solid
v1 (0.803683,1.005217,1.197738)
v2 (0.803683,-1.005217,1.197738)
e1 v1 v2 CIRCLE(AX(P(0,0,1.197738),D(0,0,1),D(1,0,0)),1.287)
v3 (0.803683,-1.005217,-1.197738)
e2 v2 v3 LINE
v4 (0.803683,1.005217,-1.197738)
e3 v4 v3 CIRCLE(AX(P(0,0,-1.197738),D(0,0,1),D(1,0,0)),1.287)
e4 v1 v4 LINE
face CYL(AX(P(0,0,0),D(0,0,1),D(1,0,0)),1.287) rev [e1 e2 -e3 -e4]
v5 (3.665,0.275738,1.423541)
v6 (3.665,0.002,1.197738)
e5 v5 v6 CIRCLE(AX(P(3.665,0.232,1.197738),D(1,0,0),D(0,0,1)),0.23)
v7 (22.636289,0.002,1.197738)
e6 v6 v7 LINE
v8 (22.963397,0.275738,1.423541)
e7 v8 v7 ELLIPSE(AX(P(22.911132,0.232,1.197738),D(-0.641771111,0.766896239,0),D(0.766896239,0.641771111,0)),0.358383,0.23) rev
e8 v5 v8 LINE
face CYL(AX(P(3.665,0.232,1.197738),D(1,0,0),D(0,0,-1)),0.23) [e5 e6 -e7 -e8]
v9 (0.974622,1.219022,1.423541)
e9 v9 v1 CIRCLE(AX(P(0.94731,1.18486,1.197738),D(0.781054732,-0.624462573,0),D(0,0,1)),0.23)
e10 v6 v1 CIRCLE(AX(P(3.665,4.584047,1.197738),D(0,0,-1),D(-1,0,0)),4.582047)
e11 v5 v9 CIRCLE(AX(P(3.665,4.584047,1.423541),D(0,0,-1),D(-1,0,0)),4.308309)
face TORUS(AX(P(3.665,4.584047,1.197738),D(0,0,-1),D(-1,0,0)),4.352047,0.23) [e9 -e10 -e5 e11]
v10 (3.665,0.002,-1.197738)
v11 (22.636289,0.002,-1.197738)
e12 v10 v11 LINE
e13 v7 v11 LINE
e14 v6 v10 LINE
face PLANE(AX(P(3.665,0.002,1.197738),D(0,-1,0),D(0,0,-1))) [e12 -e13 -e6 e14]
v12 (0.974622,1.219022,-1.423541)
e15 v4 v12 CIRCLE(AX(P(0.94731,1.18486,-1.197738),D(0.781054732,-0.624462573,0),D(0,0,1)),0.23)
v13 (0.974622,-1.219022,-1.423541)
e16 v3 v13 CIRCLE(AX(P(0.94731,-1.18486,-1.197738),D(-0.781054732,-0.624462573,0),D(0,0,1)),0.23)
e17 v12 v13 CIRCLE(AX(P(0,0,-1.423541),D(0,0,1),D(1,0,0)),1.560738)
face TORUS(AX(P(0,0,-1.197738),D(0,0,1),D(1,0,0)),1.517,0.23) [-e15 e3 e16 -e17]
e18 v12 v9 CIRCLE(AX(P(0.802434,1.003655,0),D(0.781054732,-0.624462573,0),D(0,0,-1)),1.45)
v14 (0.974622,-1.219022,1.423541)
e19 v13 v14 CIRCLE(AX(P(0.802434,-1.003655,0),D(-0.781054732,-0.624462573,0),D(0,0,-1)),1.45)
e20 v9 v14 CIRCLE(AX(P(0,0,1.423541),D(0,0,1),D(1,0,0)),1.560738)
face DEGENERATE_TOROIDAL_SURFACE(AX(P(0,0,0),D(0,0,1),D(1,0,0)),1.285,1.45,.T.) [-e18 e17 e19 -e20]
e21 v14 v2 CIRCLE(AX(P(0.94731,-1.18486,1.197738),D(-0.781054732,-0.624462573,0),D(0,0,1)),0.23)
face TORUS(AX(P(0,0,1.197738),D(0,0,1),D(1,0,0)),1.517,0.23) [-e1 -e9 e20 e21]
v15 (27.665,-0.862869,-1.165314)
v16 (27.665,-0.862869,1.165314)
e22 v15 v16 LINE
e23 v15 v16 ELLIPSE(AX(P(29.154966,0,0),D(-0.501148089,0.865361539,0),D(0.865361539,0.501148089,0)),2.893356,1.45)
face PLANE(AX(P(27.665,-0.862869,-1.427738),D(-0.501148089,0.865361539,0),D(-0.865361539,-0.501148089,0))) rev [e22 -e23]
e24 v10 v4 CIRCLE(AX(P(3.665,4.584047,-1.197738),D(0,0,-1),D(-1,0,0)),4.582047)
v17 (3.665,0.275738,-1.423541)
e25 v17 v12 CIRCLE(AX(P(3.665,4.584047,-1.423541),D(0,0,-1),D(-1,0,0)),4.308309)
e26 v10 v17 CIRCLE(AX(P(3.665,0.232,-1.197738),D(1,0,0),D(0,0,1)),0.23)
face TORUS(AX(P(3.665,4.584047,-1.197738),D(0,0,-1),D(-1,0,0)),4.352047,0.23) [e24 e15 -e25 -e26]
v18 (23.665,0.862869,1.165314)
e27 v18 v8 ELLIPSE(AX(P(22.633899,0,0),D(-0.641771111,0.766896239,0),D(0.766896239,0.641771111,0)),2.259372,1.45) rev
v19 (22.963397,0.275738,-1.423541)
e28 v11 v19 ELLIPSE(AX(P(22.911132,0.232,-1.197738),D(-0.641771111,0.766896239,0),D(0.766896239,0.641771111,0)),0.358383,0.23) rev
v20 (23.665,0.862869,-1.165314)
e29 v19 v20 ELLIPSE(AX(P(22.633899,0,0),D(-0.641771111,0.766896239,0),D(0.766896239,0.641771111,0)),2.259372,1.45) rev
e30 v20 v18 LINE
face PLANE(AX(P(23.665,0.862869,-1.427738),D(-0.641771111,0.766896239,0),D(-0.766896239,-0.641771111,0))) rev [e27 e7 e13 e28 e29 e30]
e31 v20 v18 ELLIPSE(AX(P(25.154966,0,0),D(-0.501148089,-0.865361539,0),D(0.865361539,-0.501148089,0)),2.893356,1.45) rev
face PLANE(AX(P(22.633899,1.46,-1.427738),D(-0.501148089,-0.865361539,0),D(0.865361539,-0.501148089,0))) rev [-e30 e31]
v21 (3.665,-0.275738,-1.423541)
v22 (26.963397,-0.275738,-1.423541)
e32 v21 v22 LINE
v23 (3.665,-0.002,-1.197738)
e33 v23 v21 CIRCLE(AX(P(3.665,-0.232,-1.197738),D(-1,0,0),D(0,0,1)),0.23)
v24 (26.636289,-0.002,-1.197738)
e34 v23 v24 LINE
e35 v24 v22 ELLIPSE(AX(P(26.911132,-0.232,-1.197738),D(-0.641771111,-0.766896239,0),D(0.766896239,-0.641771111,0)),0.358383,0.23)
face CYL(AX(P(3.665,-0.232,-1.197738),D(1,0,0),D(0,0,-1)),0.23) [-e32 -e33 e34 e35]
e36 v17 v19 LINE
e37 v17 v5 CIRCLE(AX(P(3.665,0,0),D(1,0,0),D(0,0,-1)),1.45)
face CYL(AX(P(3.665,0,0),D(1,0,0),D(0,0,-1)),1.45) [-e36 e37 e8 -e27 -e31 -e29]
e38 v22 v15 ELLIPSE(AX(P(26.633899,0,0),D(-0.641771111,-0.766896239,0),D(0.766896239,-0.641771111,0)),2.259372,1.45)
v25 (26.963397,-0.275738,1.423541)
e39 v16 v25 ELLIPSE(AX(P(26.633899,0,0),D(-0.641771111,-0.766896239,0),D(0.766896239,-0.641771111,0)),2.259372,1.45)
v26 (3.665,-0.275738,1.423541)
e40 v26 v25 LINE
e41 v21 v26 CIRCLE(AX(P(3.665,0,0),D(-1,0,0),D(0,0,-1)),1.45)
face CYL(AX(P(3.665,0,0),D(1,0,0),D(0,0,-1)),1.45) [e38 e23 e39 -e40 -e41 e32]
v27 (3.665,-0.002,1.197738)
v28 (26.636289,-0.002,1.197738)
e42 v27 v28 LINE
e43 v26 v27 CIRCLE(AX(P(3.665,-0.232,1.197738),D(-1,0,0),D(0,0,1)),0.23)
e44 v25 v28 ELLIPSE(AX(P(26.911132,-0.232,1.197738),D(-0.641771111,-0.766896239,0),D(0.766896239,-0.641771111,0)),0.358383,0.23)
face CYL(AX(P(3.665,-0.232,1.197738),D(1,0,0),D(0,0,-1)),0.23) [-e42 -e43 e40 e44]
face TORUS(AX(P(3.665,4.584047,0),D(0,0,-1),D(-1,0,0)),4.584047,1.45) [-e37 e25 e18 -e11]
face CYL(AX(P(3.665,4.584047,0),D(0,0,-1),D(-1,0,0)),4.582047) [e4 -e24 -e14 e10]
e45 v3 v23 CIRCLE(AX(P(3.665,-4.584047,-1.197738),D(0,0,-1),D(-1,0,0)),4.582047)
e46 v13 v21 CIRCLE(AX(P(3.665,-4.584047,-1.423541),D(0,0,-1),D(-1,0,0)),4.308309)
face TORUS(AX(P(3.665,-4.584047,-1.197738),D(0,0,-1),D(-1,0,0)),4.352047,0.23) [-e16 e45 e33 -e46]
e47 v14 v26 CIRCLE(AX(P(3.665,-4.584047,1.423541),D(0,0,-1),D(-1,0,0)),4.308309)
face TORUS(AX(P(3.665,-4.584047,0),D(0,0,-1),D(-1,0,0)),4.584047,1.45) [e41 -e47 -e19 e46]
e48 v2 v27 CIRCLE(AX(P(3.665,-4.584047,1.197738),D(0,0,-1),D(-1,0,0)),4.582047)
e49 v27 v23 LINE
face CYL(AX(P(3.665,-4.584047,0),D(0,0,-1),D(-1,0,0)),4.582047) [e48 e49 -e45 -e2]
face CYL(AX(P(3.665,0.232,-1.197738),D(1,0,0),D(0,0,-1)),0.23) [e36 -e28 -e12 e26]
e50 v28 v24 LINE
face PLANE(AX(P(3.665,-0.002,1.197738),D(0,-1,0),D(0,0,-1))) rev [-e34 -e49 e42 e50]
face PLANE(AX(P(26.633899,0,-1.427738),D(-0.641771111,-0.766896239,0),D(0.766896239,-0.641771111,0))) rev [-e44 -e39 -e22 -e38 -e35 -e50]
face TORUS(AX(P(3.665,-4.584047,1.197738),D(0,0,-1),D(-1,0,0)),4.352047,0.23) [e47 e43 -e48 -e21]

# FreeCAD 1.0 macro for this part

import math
import FreeCAD as App
import Part
import Sketcher

V = App.Vector
Q = App.Units.Quantity

doc = App.newDocument("Part")
body = doc.addObject("PartDesign::Body", "Body")

sketch1 = body.newObject("Sketcher::SketchObject", "Sketch")
sketch1.AttachmentSupport = (doc.getObject("YZ_Plane"), [""])
sketch1.MapMode = "FlatFace"
sketch1.AttachmentOffset = App.Placement(V(0, 0, 23.665), App.Rotation())
sketch1.addGeometry([
    Part.LineSegment(V(0, 1.2, 0), V(0, -1.2, 0)),
    Part.ArcOfCircle(Part.Circle(V(0.23, -1.2, 0), V(0, 0, 1), 0.23), math.radians(180), math.radians(281)),
    Part.ArcOfCircle(Part.Circle(V(0, 0, 0), V(0, 0, 1), 1.45), math.radians(-79), math.radians(79)),
    Part.ArcOfCircle(Part.Circle(V(0.23, 1.2, 0), V(0, 0, 1), 0.23), math.radians(79), math.radians(180)),
], False)
sketch1.addConstraint([
    Sketcher.Constraint("Tangent", 0, 2, 1, 1),
    Sketcher.Constraint("Tangent", 1, 2, 2, 1),
    Sketcher.Constraint("Tangent", 2, 2, 3, 1),
    Sketcher.Constraint("Tangent", 3, 2, 0, 1),
    Sketcher.Constraint("Vertical", 0),
    Sketcher.Constraint("Coincident", 2, 3, -1, 1),
    Sketcher.Constraint("Equal", 1, 3),
    Sketcher.Constraint("Radius", 1, Q("0.23 mm")),
    Sketcher.Constraint("Radius", 2, Q("1.45 mm")),
    Sketcher.Constraint("DistanceX", -1, 1, 1, 3, Q("0.232 mm")),
])

sketch2 = body.newObject("Sketcher::SketchObject", "Sketch001")
sketch2.AttachmentSupport = (doc.getObject("XY_Plane"), [""])
sketch2.MapMode = "FlatFace"
sketch2.addGeometry([
    Part.LineSegment(V(23.7, 1.4, 0), V(3.7, 1.4, 0)),
    Part.ArcOfCircle(Part.Circle(V(3.7, 4.6, 0), V(0, 0, 1), 3.1), math.radians(-129), math.radians(-90)),
    Part.ArcOfCircle(Part.Circle(V(0, 0, 0), V(0, 0, 1), 2.7), math.radians(51), math.radians(309)),
    Part.ArcOfCircle(Part.Circle(V(3.7, -4.6, 0), V(0, 0, 1), 3.1), math.radians(90), math.radians(129)),
    Part.LineSegment(V(3.7, -1.4, 0), V(27.7, -1.4, 0)),
], False)
sketch2.addConstraint([
    Sketcher.Constraint("Tangent", 0, 2, 1, 2),
    Sketcher.Constraint("Tangent", 1, 1, 2, 1),
    Sketcher.Constraint("Tangent", 2, 2, 3, 2),
    Sketcher.Constraint("Tangent", 3, 1, 4, 1),
    Sketcher.Constraint("Horizontal", 0),
    Sketcher.Constraint("Horizontal", 4),
    Sketcher.Constraint("Coincident", 2, 3, -1, 1),
    Sketcher.Constraint("Equal", 1, 3),
    Sketcher.Constraint("Vertical", 1, 3, 3, 3),
    Sketcher.Constraint("DistanceX", 0, 2, 0, 1, Q("20 mm")),
    Sketcher.Constraint("DistanceX", 4, 1, 4, 2, Q("24 mm")),
    Sketcher.Constraint("Radius", 2, Q("2.735 mm")),
    Sketcher.Constraint("DistanceY", 3, 1, 0, 2, Q("2.9 mm")),
    Sketcher.Constraint("DistanceX", -1, 1, 1, 3, Q("3.665 mm")),
])
doc.recompute()

additivepipe = body.newObject("PartDesign::AdditivePipe", "AdditivePipe")
additivepipe.Profile = sketch1
additivepipe.Spine = (sketch2, ["Edge1", "Edge2", "Edge3", "Edge4", "Edge5"])

sketch3 = body.newObject("Sketcher::SketchObject", "Sketch002")
sketch3.AttachmentSupport = (doc.getObject("XY_Plane"), [""])
sketch3.MapMode = "FlatFace"
sketch3.addGeometry([
    Part.LineSegment(V(27.7, 1.5, 0), V(22.6, 1.5, 0)),
    Part.LineSegment(V(22.6, 1.5, 0), V(23.7, 0.9, 0)),
    Part.LineSegment(V(23.7, 0.9, 0), V(22.6, 0, 0)),
    Part.LineSegment(V(22.6, 0, 0), V(26.6, 0, 0)),
    Part.LineSegment(V(26.6, 0, 0), V(27.7, -0.9, 0)),
    Part.LineSegment(V(27.7, -0.9, 0), V(26.6, -1.5, 0)),
    Part.LineSegment(V(26.6, -1.5, 0), V(27.7, -1.5, 0)),
    Part.LineSegment(V(27.7, -1.5, 0), V(27.7, 1.5, 0)),
], False)
sketch3.addConstraint([
    Sketcher.Constraint("Coincident", 0, 2, 1, 1),
    Sketcher.Constraint("Coincident", 1, 2, 2, 1),
    Sketcher.Constraint("Coincident", 2, 2, 3, 1),
    Sketcher.Constraint("Coincident", 3, 2, 4, 1),
    Sketcher.Constraint("Coincident", 4, 2, 5, 1),
    Sketcher.Constraint("Coincident", 5, 2, 6, 1),
    Sketcher.Constraint("Coincident", 6, 2, 7, 1),
    Sketcher.Constraint("Coincident", 7, 2, 0, 1),
    Sketcher.Constraint("Horizontal", 0),
    Sketcher.Constraint("Horizontal", 3),
    Sketcher.Constraint("Horizontal", 6),
    Sketcher.Constraint("Vertical", 7),
    Sketcher.Constraint("PointOnObject", 2, 2, -1),
    Sketcher.Constraint("Vertical", 0, 2, 2, 2),
    Sketcher.Constraint("Vertical", 3, 2, 5, 2),
    Sketcher.Constraint("Equal", 2, 4),
    Sketcher.Constraint("Equal", 1, 5),
    Sketcher.Constraint("DistanceX", 3, 1, 3, 2, Q("4 mm")),
    Sketcher.Constraint("DistanceX", 1, 2, 4, 2, Q("4 mm")),
    Sketcher.Constraint("DistanceY", 7, 1, 7, 2, Q("2.92 mm")),
    Sketcher.Constraint("DistanceX", 4, 2, 6, 2, Q("0.01 mm")),
    Sketcher.Constraint("DistanceX", 0, 2, 0, 1, Q("5.041101 mm")),
    Sketcher.Constraint("DistanceX", -1, 1, 1, 2, Q("23.665 mm")),
    Sketcher.Constraint("Distance", 2, Q("1.344512 mm")),
])
pocket1 = body.newObject("PartDesign::Pocket", "Pocket")
pocket1.Profile = sketch3
pocket1.Type = "ThroughAll"
pocket1.Midplane = True

doc.recompute()
